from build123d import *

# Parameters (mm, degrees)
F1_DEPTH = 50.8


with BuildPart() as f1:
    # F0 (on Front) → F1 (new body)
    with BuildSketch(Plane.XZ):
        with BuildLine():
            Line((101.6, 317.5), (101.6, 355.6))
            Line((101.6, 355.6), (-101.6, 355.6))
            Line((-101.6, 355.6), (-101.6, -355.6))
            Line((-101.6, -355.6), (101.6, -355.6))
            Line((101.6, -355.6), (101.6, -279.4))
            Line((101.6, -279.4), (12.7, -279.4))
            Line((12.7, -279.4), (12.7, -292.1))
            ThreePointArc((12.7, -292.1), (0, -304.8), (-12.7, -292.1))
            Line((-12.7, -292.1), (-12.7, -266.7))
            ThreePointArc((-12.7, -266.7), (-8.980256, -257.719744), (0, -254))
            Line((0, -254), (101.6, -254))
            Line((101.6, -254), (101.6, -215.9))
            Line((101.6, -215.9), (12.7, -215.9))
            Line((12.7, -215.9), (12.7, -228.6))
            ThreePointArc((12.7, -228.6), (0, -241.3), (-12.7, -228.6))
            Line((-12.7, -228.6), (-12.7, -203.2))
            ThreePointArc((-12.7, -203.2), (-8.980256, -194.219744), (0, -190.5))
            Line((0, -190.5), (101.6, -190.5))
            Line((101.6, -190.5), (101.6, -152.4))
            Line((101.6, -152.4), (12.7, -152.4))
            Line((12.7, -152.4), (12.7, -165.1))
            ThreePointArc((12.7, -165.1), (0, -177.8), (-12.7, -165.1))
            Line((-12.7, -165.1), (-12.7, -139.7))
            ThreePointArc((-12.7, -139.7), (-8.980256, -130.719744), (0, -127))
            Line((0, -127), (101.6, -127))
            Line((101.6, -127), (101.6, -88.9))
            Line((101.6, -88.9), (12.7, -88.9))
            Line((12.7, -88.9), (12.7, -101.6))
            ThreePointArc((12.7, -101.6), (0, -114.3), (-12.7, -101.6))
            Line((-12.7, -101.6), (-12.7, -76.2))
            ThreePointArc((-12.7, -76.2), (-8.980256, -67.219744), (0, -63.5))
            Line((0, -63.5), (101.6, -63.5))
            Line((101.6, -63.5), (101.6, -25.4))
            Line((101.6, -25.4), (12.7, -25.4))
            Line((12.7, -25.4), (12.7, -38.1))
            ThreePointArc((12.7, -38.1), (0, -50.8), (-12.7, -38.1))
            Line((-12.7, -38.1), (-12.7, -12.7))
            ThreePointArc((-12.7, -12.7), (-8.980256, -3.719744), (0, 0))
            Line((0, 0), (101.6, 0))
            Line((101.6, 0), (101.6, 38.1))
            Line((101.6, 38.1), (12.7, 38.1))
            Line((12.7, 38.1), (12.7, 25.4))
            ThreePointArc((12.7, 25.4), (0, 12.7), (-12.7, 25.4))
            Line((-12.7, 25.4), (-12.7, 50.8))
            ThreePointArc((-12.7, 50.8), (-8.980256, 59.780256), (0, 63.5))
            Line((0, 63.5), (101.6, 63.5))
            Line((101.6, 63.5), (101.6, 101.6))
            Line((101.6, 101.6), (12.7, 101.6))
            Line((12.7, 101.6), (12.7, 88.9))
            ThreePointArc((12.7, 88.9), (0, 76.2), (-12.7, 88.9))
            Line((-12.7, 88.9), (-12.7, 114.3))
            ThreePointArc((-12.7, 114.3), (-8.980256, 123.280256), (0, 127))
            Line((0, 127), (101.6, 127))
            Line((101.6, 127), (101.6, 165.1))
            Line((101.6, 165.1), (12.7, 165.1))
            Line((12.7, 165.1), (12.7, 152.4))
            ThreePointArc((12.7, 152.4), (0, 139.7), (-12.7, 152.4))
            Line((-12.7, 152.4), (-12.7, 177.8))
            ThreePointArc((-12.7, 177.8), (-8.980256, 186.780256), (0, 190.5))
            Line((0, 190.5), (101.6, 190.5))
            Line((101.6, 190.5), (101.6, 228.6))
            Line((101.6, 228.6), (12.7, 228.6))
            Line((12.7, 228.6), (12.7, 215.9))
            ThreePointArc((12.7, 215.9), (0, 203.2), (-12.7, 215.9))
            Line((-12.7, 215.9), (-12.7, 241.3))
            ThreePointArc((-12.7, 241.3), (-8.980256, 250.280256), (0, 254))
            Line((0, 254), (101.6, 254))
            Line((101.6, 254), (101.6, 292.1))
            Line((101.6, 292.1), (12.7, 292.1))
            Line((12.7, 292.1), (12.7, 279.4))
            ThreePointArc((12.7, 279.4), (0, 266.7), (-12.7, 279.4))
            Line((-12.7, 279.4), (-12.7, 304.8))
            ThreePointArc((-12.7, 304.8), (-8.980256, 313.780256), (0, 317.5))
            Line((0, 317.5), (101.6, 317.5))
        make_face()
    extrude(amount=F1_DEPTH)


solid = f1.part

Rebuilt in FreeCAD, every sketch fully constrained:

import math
import FreeCAD as App
import Part
import Sketcher

V = App.Vector
Q = App.Units.Quantity

doc = App.newDocument("Part")
body = doc.addObject("PartDesign::Body", "Body")

# Sketch on XZ plane
sketch1 = body.newObject("Sketcher::SketchObject", "Sketch")
sketch1.AttachmentSupport = (doc.getObject("XZ_Plane"), [""])
sketch1.MapMode = "FlatFace"
sketch1.addGeometry([
    Part.LineSegment(V(102, 318, 0), V(102, 356, 0)),  # 0
    Part.LineSegment(V(102, 356, 0), V(-102, 356, 0)),  # 1
    Part.LineSegment(V(-102, 356, 0), V(-102, -356, 0)),  # 2
    Part.LineSegment(V(-102, -356, 0), V(102, -356, 0)),  # 3
    Part.LineSegment(V(102, -356, 0), V(102, -279, 0)),  # 4
    Part.LineSegment(V(102, -279, 0), V(13, -279, 0)),  # 5
    Part.LineSegment(V(13, -279, 0), V(13, -292, 0)),  # 6
    Part.ArcOfCircle(Part.Circle(V(0, -292, 0), V(0, 0, 1), 13), math.radians(180), math.radians(360)),  # 7
    Part.LineSegment(V(-13, -292, 0), V(-13, -267, 0)),  # 8
    Part.ArcOfCircle(Part.Circle(V(0, -267, 0), V(0, 0, 1), 13), math.radians(90), math.radians(180)),  # 9
    Part.LineSegment(V(0, -254, 0), V(102, -254, 0)),  # 10
    Part.LineSegment(V(102, -254, 0), V(102, -216, 0)),  # 11
    Part.LineSegment(V(102, -216, 0), V(13, -216, 0)),  # 12
    Part.LineSegment(V(13, -216, 0), V(13, -229, 0)),  # 13
    Part.ArcOfCircle(Part.Circle(V(0, -229, 0), V(0, 0, 1), 13), math.radians(180), math.radians(360)),  # 14
    Part.LineSegment(V(-13, -229, 0), V(-13, -203, 0)),  # 15
    Part.ArcOfCircle(Part.Circle(V(0, -203, 0), V(0, 0, 1), 13), math.radians(90), math.radians(180)),  # 16
    Part.LineSegment(V(0, -190, 0), V(102, -190, 0)),  # 17
    Part.LineSegment(V(102, -190, 0), V(102, -152, 0)),  # 18
    Part.LineSegment(V(102, -152, 0), V(13, -152, 0)),  # 19
    Part.LineSegment(V(13, -152, 0), V(13, -165, 0)),  # 20
    Part.ArcOfCircle(Part.Circle(V(0, -165, 0), V(0, 0, 1), 13), math.radians(180), math.radians(360)),  # 21
    Part.LineSegment(V(-13, -165, 0), V(-13, -140, 0)),  # 22
    Part.ArcOfCircle(Part.Circle(V(0, -140, 0), V(0, 0, 1), 13), math.radians(90), math.radians(180)),  # 23
    Part.LineSegment(V(0, -127, 0), V(102, -127, 0)),  # 24
    Part.LineSegment(V(102, -127, 0), V(102, -89, 0)),  # 25
    Part.LineSegment(V(102, -89, 0), V(13, -89, 0)),  # 26
    Part.LineSegment(V(13, -89, 0), V(13, -102, 0)),  # 27
    Part.ArcOfCircle(Part.Circle(V(0, -102, 0), V(0, 0, 1), 13), math.radians(180), math.radians(360)),  # 28
    Part.LineSegment(V(-13, -102, 0), V(-13, -76, 0)),  # 29
    Part.ArcOfCircle(Part.Circle(V(0, -76, 0), V(0, 0, 1), 13), math.radians(90), math.radians(180)),  # 30
    Part.LineSegment(V(0, -64, 0), V(102, -64, 0)),  # 31
    Part.LineSegment(V(102, -64, 0), V(102, -25, 0)),  # 32
    Part.LineSegment(V(102, -25, 0), V(13, -25, 0)),  # 33
    Part.LineSegment(V(13, -25, 0), V(13, -38, 0)),  # 34
    Part.ArcOfCircle(Part.Circle(V(0, -38, 0), V(0, 0, 1), 13), math.radians(180), math.radians(360)),  # 35
    Part.LineSegment(V(-13, -38, 0), V(-13, -13, 0)),  # 36
    Part.ArcOfCircle(Part.Circle(V(0, -13, 0), V(0, 0, 1), 13), math.radians(90), math.radians(180)),  # 37
    Part.LineSegment(V(0, 0, 0), V(102, 0, 0)),  # 38
    Part.LineSegment(V(102, 0, 0), V(102, 38, 0)),  # 39
    Part.LineSegment(V(102, 38, 0), V(13, 38, 0)),  # 40
    Part.LineSegment(V(13, 38, 0), V(13, 25, 0)),  # 41
    Part.ArcOfCircle(Part.Circle(V(0, 25, 0), V(0, 0, 1), 13), math.radians(180), math.radians(360)),  # 42
    Part.LineSegment(V(-13, 25, 0), V(-13, 51, 0)),  # 43
    Part.ArcOfCircle(Part.Circle(V(0, 51, 0), V(0, 0, 1), 13), math.radians(90), math.radians(180)),  # 44
    Part.LineSegment(V(0, 64, 0), V(102, 64, 0)),  # 45
    Part.LineSegment(V(102, 64, 0), V(102, 102, 0)),  # 46
    Part.LineSegment(V(102, 102, 0), V(13, 102, 0)),  # 47
    Part.LineSegment(V(13, 102, 0), V(13, 89, 0)),  # 48
    Part.ArcOfCircle(Part.Circle(V(0, 89, 0), V(0, 0, 1), 13), math.radians(180), math.radians(360)),  # 49
    Part.LineSegment(V(-13, 89, 0), V(-13, 114, 0)),  # 50
    Part.ArcOfCircle(Part.Circle(V(0, 114, 0), V(0, 0, 1), 13), math.radians(90), math.radians(180)),  # 51
    Part.LineSegment(V(0, 127, 0), V(102, 127, 0)),  # 52
    Part.LineSegment(V(102, 127, 0), V(102, 165, 0)),  # 53
    Part.LineSegment(V(102, 165, 0), V(13, 165, 0)),  # 54
    Part.LineSegment(V(13, 165, 0), V(13, 152, 0)),  # 55
    Part.ArcOfCircle(Part.Circle(V(0, 152, 0), V(0, 0, 1), 13), math.radians(180), math.radians(360)),  # 56
    Part.LineSegment(V(-13, 152, 0), V(-13, 178, 0)),  # 57
    Part.ArcOfCircle(Part.Circle(V(0, 178, 0), V(0, 0, 1), 13), math.radians(90), math.radians(180)),  # 58
    Part.LineSegment(V(0, 190, 0), V(102, 190, 0)),  # 59
    Part.LineSegment(V(102, 190, 0), V(102, 229, 0)),  # 60
    Part.LineSegment(V(102, 229, 0), V(13, 229, 0)),  # 61
    Part.LineSegment(V(13, 229, 0), V(13, 216, 0)),  # 62
    Part.ArcOfCircle(Part.Circle(V(0, 216, 0), V(0, 0, 1), 13), math.radians(180), math.radians(360)),  # 63
    Part.LineSegment(V(-13, 216, 0), V(-13, 241, 0)),  # 64
    Part.ArcOfCircle(Part.Circle(V(0, 241, 0), V(0, 0, 1), 13), math.radians(90), math.radians(180)),  # 65
    Part.LineSegment(V(0, 254, 0), V(102, 254, 0)),  # 66
    Part.LineSegment(V(102, 254, 0), V(102, 292, 0)),  # 67
    Part.LineSegment(V(102, 292, 0), V(13, 292, 0)),  # 68
    Part.LineSegment(V(13, 292, 0), V(13, 279, 0)),  # 69
    Part.ArcOfCircle(Part.Circle(V(0, 279, 0), V(0, 0, 1), 13), math.radians(180), math.radians(360)),  # 70
    Part.LineSegment(V(-13, 279, 0), V(-13, 305, 0)),  # 71
    Part.ArcOfCircle(Part.Circle(V(0, 305, 0), V(0, 0, 1), 13), math.radians(90), math.radians(180)),  # 72
    Part.LineSegment(V(0, 318, 0), V(102, 318, 0)),  # 73
], False)
sketch1.addConstraint([
    Sketcher.Constraint("Coincident", 0, 2, 1, 1),
    Sketcher.Constraint("Coincident", 1, 2, 2, 1),
    Sketcher.Constraint("Coincident", 2, 2, 3, 1),
    Sketcher.Constraint("Coincident", 3, 2, 4, 1),
    Sketcher.Constraint("Coincident", 4, 2, 5, 1),
    Sketcher.Constraint("Coincident", 5, 2, 6, 1),
    Sketcher.Constraint("Tangent", 6, 2, 7, 2),
    Sketcher.Constraint("Tangent", 7, 1, 8, 1),
    Sketcher.Constraint("Tangent", 8, 2, 9, 2),
    Sketcher.Constraint("Tangent", 9, 1, 10, 1),
    Sketcher.Constraint("Coincident", 10, 2, 11, 1),
    Sketcher.Constraint("Coincident", 11, 2, 12, 1),
    Sketcher.Constraint("Coincident", 12, 2, 13, 1),
    Sketcher.Constraint("Tangent", 13, 2, 14, 2),
    Sketcher.Constraint("Tangent", 14, 1, 15, 1),
    Sketcher.Constraint("Tangent", 15, 2, 16, 2),
    Sketcher.Constraint("Tangent", 16, 1, 17, 1),
    Sketcher.Constraint("Coincident", 17, 2, 18, 1),
    Sketcher.Constraint("Coincident", 18, 2, 19, 1),
    Sketcher.Constraint("Coincident", 19, 2, 20, 1),
    Sketcher.Constraint("Tangent", 20, 2, 21, 2),
    Sketcher.Constraint("Tangent", 21, 1, 22, 1),
    Sketcher.Constraint("Tangent", 22, 2, 23, 2),
    Sketcher.Constraint("Tangent", 23, 1, 24, 1),
    Sketcher.Constraint("Coincident", 24, 2, 25, 1),
    Sketcher.Constraint("Coincident", 25, 2, 26, 1),
    Sketcher.Constraint("Coincident", 26, 2, 27, 1),
    Sketcher.Constraint("Tangent", 27, 2, 28, 2),
    Sketcher.Constraint("Tangent", 28, 1, 29, 1),
    Sketcher.Constraint("Tangent", 29, 2, 30, 2),
    Sketcher.Constraint("Tangent", 30, 1, 31, 1),
    Sketcher.Constraint("Coincident", 31, 2, 32, 1),
    Sketcher.Constraint("Coincident", 32, 2, 33, 1),
    Sketcher.Constraint("Coincident", 33, 2, 34, 1),
    Sketcher.Constraint("Tangent", 34, 2, 35, 2),
    Sketcher.Constraint("Tangent", 35, 1, 36, 1),
    Sketcher.Constraint("Tangent", 36, 2, 37, 2),
    Sketcher.Constraint("Tangent", 37, 1, 38, 1),
    Sketcher.Constraint("Coincident", 38, 2, 39, 1),
    Sketcher.Constraint("Coincident", 39, 2, 40, 1),
    Sketcher.Constraint("Coincident", 40, 2, 41, 1),
    Sketcher.Constraint("Tangent", 41, 2, 42, 2),
    Sketcher.Constraint("Tangent", 42, 1, 43, 1),
    Sketcher.Constraint("Tangent", 43, 2, 44, 2),
    Sketcher.Constraint("Tangent", 44, 1, 45, 1),
    Sketcher.Constraint("Coincident", 45, 2, 46, 1),
    Sketcher.Constraint("Coincident", 46, 2, 47, 1),
    Sketcher.Constraint("Coincident", 47, 2, 48, 1),
    Sketcher.Constraint("Tangent", 48, 2, 49, 2),
    Sketcher.Constraint("Tangent", 49, 1, 50, 1),
    Sketcher.Constraint("Tangent", 50, 2, 51, 2),
    Sketcher.Constraint("Tangent", 51, 1, 52, 1),
    Sketcher.Constraint("Coincident", 52, 2, 53, 1),
    Sketcher.Constraint("Coincident", 53, 2, 54, 1),
    Sketcher.Constraint("Coincident", 54, 2, 55, 1),
    Sketcher.Constraint("Tangent", 55, 2, 56, 2),
    Sketcher.Constraint("Tangent", 56, 1, 57, 1),
    Sketcher.Constraint("Tangent", 57, 2, 58, 2),
    Sketcher.Constraint("Tangent", 58, 1, 59, 1),
    Sketcher.Constraint("Coincident", 59, 2, 60, 1),
    Sketcher.Constraint("Coincident", 60, 2, 61, 1),
    Sketcher.Constraint("Coincident", 61, 2, 62, 1),
    Sketcher.Constraint("Tangent", 62, 2, 63, 2),
    Sketcher.Constraint("Tangent", 63, 1, 64, 1),
    Sketcher.Constraint("Tangent", 64, 2, 65, 2),
    Sketcher.Constraint("Tangent", 65, 1, 66, 1),
    Sketcher.Constraint("Coincident", 66, 2, 67, 1),
    Sketcher.Constraint("Coincident", 67, 2, 68, 1),
    Sketcher.Constraint("Coincident", 68, 2, 69, 1),
    Sketcher.Constraint("Tangent", 69, 2, 70, 2),
    Sketcher.Constraint("Tangent", 70, 1, 71, 1),
    Sketcher.Constraint("Tangent", 71, 2, 72, 2),
    Sketcher.Constraint("Tangent", 72, 1, 73, 1),
    Sketcher.Constraint("Coincident", 73, 2, 0, 1),
    Sketcher.Constraint("Vertical", 0),
    Sketcher.Constraint("Horizontal", 1),
    Sketcher.Constraint("Vertical", 2),
    Sketcher.Constraint("Horizontal", 3),
    Sketcher.Constraint("Vertical", 4),
    Sketcher.Constraint("Horizontal", 5),
    Sketcher.Constraint("Vertical", 6),
    Sketcher.Constraint("Vertical", 8),
    Sketcher.Constraint("Horizontal", 10),
    Sketcher.Constraint("Vertical", 11),
    Sketcher.Constraint("Horizontal", 12),
    Sketcher.Constraint("Vertical", 13),
    Sketcher.Constraint("Vertical", 15),
    Sketcher.Constraint("Horizontal", 17),
    Sketcher.Constraint("Vertical", 18),
    Sketcher.Constraint("Horizontal", 19),
    Sketcher.Constraint("Vertical", 20),
    Sketcher.Constraint("Vertical", 22),
    Sketcher.Constraint("Horizontal", 24),
    Sketcher.Constraint("Vertical", 25),
    Sketcher.Constraint("Horizontal", 26),
    Sketcher.Constraint("Vertical", 27),
    Sketcher.Constraint("Vertical", 29),
    Sketcher.Constraint("Horizontal", 31),
    Sketcher.Constraint("Vertical", 32),
    Sketcher.Constraint("Horizontal", 33),
    Sketcher.Constraint("Vertical", 34),
    Sketcher.Constraint("Vertical", 36),
    Sketcher.Constraint("Horizontal", 38),
    Sketcher.Constraint("Vertical", 39),
    Sketcher.Constraint("Horizontal", 40),
    Sketcher.Constraint("Vertical", 41),
    Sketcher.Constraint("Vertical", 43),
    Sketcher.Constraint("Horizontal", 45),
    Sketcher.Constraint("Vertical", 46),
    Sketcher.Constraint("Horizontal", 47),
    Sketcher.Constraint("Vertical", 48),
    Sketcher.Constraint("Vertical", 50),
    Sketcher.Constraint("Horizontal", 52),
    Sketcher.Constraint("Vertical", 53),
    Sketcher.Constraint("Horizontal", 54),
    Sketcher.Constraint("Vertical", 55),
    Sketcher.Constraint("Vertical", 57),
    Sketcher.Constraint("Horizontal", 59),
    Sketcher.Constraint("Vertical", 60),
    Sketcher.Constraint("Horizontal", 61),
    Sketcher.Constraint("Vertical", 62),
    Sketcher.Constraint("Vertical", 64),
    Sketcher.Constraint("Horizontal", 66),
    Sketcher.Constraint("Vertical", 67),
    Sketcher.Constraint("Horizontal", 68),
    Sketcher.Constraint("Vertical", 69),
    Sketcher.Constraint("Vertical", 71),
    Sketcher.Constraint("Horizontal", 73),
    Sketcher.Constraint("Coincident", 37, 1, -1, 1),
    Sketcher.Constraint("Equal", 7, 9),
    Sketcher.Constraint("Equal", 9, 14),
    Sketcher.Constraint("Equal", 14, 16),
    Sketcher.Constraint("Equal", 16, 21),
    Sketcher.Constraint("Equal", 21, 23),
    Sketcher.Constraint("Equal", 23, 28),
    Sketcher.Constraint("Equal", 28, 30),
    Sketcher.Constraint("Equal", 30, 35),
    Sketcher.Constraint("Equal", 35, 37),
    Sketcher.Constraint("Equal", 37, 42),
    Sketcher.Constraint("Equal", 42, 44),
    Sketcher.Constraint("Equal", 44, 49),
    Sketcher.Constraint("Equal", 49, 51),
    Sketcher.Constraint("Equal", 51, 56),
    Sketcher.Constraint("Equal", 56, 58),
    Sketcher.Constraint("Equal", 58, 63),
    Sketcher.Constraint("Equal", 63, 65),
    Sketcher.Constraint("Equal", 65, 70),
    Sketcher.Constraint("Equal", 70, 72),
    Sketcher.Constraint("Symmetric", 0, 2, 2, 2, -1, 1),
    Sketcher.Constraint("Symmetric", 35, 1, 40, 2, -1, 1),
    Sketcher.Constraint("Symmetric", 30, 1, 44, 1, -1, 1),
    Sketcher.Constraint("Symmetric", 28, 1, 47, 2, -1, 1),
    Sketcher.Constraint("Symmetric", 23, 1, 51, 1, -1, 1),
    Sketcher.Constraint("Symmetric", 21, 1, 54, 2, -1, 1),
    Sketcher.Constraint("Symmetric", 16, 1, 58, 1, -1, 1),
    Sketcher.Constraint("Symmetric", 14, 1, 61, 2, -1, 1),
    Sketcher.Constraint("Symmetric", 9, 1, 65, 1, -1, 1),
    Sketcher.Constraint("Symmetric", 7, 1, 68, 2, -1, 1),
    Sketcher.Constraint("Vertical", 0, 2, 3, 2),
    Sketcher.Constraint("Vertical", 4, 2, 10, 2),
    Sketcher.Constraint("Vertical", 11, 2, 17, 2),
    Sketcher.Constraint("Vertical", 18, 2, 24, 2),
    Sketcher.Constraint("Vertical", 25, 2, 31, 2),
    Sketcher.Constraint("Vertical", 32, 2, 38, 2),
    Sketcher.Constraint("Vertical", 39, 2, 45, 2),
    Sketcher.Constraint("Vertical", 46, 2, 52, 2),
    Sketcher.Constraint("Vertical", 53, 2, 59, 2),
    Sketcher.Constraint("Vertical", 60, 2, 66, 2),
    Sketcher.Constraint("Equal", 0, 11),
    Sketcher.Constraint("Equal", 6, 13),
    Sketcher.Constraint("Equal", 8, 15),
    Sketcher.Constraint("Equal", 11, 18),
    Sketcher.Constraint("Equal", 13, 20),
    Sketcher.Constraint("Equal", 15, 22),
    Sketcher.Constraint("Equal", 18, 25),
    Sketcher.Constraint("Equal", 20, 27),
    Sketcher.Constraint("Equal", 22, 29),
    Sketcher.Constraint("Equal", 25, 32),
    Sketcher.Constraint("Equal", 27, 34),
    Sketcher.Constraint("Equal", 29, 36),
    Sketcher.Constraint("Equal", 32, 39),
    Sketcher.Constraint("Equal", 34, 41),
    Sketcher.Constraint("Equal", 41, 48),
    Sketcher.Constraint("Equal", 48, 55),
    Sketcher.Constraint("Equal", 55, 62),
    Sketcher.Constraint("Equal", 62, 69),
    Sketcher.Constraint("Equal", 64, 71),
    Sketcher.Constraint("Radius", 7, Q("0.5 in")),
    Sketcher.Constraint("DistanceX", 1, 2, 1, 1, Q("8 in")),
    Sketcher.Constraint("DistanceY", 2, 2, 2, 1, Q("28 in")),
    Sketcher.Constraint("DistanceY", 4, 1, 4, 2, Q("3 in")),
])
pad1 = body.newObject("PartDesign::Pad", "Pad")
pad1.Profile = sketch1
pad1.Length = Q("2 in")

doc.recompute()
